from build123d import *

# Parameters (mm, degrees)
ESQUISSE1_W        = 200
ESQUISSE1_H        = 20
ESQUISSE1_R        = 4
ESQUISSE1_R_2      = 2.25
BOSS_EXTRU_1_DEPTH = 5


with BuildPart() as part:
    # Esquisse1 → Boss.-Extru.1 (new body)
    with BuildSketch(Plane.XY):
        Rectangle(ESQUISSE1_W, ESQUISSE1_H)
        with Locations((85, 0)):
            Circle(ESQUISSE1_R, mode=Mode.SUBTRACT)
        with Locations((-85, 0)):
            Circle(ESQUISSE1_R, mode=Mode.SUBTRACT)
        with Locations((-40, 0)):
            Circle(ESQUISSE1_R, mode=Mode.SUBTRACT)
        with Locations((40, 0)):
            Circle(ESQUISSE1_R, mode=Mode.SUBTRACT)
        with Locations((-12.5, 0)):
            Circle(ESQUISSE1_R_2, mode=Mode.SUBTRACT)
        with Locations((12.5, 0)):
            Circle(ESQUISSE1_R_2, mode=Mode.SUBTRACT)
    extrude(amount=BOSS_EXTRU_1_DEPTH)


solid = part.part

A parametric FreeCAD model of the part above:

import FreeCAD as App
import Part
import Sketcher

V = App.Vector

doc = App.newDocument("Part")
body = doc.addObject("PartDesign::Body", "Body")

# Sketch on XY plane
sketch1 = doc.addObject("Sketcher::SketchObject", "Sketch")
body.addObject(sketch1)
sketch1.AttachmentSupport = (doc.XY_Plane, [""])
sketch1.MapMode = "FlatFace"
sketch1.addGeometry([
    Part.LineSegment(V(-100, 10, 0), V(-100, -10, 0)),  # 0
    Part.LineSegment(V(-100, -10, 0), V(100, -10, 0)),  # 1
    Part.LineSegment(V(100, -10, 0), V(100, 10, 0)),  # 2
    Part.LineSegment(V(100, 10, 0), V(-100, 10, 0)),  # 3
    Part.Circle(V(-85, 0, 0), V(0, 0, 1), 4),  # 4
    Part.Circle(V(-40, 0, 0), V(0, 0, 1), 4),  # 5
    Part.Circle(V(-12.5, 0, 0), V(0, 0, 1), 2.2),  # 6
    Part.Circle(V(12.5, 0, 0), V(0, 0, 1), 2.2),  # 7
    Part.Circle(V(40, 0, 0), V(0, 0, 1), 4),  # 8
    Part.Circle(V(85, 0, 0), V(0, 0, 1), 4),  # 9
], False)
sketch1.addConstraint([
    Sketcher.Constraint("Coincident", 0, 2, 1, 1),
    Sketcher.Constraint("Coincident", 1, 2, 2, 1),
    Sketcher.Constraint("Coincident", 2, 2, 3, 1),
    Sketcher.Constraint("Coincident", 3, 2, 0, 1),
    Sketcher.Constraint("Vertical", 0),
    Sketcher.Constraint("Horizontal", 1),
    Sketcher.Constraint("Vertical", 2),
    Sketcher.Constraint("Horizontal", 3),
    Sketcher.Constraint("Equal", 4, 5),
    Sketcher.Constraint("Equal", 6, 7),
    Sketcher.Constraint("Equal", 5, 8),
    Sketcher.Constraint("Equal", 8, 9),
    Sketcher.Constraint("Symmetric", 6, 3, 7, 3, -1, 1),
    Sketcher.Constraint("Symmetric", 5, 3, 8, 3, -1, 1),
    Sketcher.Constraint("Symmetric", 4, 3, 9, 3, -1, 1),
    Sketcher.Constraint("Symmetric", 0, 2, 2, 2, -1, 1),
    Sketcher.Constraint("PointOnObject", 4, 3, -1),
    Sketcher.Constraint("PointOnObject", 5, 3, -1),
    Sketcher.Constraint("PointOnObject", 6, 3, -1),
    Sketcher.Constraint("Diameter", 4, 8.0),
    Sketcher.Constraint("Diameter", 6, 4.5),
    Sketcher.Constraint("DistanceX", 1, 1, 1, 2, 200.0),
    Sketcher.Constraint("DistanceY", 0, 2, 0, 1, 20.0),
    Sketcher.Constraint("DistanceX", 4, 3, -1, 1, 85.0),
    Sketcher.Constraint("DistanceX", 5, 3, -1, 1, 40.0),
    Sketcher.Constraint("DistanceX", 6, 3, 7, 3, 25.0),
])
pad1 = doc.addObject("PartDesign::Pad", "Pad")
body.addObject(pad1)
pad1.Profile = sketch1
pad1.Length = 5

doc.recompute()
